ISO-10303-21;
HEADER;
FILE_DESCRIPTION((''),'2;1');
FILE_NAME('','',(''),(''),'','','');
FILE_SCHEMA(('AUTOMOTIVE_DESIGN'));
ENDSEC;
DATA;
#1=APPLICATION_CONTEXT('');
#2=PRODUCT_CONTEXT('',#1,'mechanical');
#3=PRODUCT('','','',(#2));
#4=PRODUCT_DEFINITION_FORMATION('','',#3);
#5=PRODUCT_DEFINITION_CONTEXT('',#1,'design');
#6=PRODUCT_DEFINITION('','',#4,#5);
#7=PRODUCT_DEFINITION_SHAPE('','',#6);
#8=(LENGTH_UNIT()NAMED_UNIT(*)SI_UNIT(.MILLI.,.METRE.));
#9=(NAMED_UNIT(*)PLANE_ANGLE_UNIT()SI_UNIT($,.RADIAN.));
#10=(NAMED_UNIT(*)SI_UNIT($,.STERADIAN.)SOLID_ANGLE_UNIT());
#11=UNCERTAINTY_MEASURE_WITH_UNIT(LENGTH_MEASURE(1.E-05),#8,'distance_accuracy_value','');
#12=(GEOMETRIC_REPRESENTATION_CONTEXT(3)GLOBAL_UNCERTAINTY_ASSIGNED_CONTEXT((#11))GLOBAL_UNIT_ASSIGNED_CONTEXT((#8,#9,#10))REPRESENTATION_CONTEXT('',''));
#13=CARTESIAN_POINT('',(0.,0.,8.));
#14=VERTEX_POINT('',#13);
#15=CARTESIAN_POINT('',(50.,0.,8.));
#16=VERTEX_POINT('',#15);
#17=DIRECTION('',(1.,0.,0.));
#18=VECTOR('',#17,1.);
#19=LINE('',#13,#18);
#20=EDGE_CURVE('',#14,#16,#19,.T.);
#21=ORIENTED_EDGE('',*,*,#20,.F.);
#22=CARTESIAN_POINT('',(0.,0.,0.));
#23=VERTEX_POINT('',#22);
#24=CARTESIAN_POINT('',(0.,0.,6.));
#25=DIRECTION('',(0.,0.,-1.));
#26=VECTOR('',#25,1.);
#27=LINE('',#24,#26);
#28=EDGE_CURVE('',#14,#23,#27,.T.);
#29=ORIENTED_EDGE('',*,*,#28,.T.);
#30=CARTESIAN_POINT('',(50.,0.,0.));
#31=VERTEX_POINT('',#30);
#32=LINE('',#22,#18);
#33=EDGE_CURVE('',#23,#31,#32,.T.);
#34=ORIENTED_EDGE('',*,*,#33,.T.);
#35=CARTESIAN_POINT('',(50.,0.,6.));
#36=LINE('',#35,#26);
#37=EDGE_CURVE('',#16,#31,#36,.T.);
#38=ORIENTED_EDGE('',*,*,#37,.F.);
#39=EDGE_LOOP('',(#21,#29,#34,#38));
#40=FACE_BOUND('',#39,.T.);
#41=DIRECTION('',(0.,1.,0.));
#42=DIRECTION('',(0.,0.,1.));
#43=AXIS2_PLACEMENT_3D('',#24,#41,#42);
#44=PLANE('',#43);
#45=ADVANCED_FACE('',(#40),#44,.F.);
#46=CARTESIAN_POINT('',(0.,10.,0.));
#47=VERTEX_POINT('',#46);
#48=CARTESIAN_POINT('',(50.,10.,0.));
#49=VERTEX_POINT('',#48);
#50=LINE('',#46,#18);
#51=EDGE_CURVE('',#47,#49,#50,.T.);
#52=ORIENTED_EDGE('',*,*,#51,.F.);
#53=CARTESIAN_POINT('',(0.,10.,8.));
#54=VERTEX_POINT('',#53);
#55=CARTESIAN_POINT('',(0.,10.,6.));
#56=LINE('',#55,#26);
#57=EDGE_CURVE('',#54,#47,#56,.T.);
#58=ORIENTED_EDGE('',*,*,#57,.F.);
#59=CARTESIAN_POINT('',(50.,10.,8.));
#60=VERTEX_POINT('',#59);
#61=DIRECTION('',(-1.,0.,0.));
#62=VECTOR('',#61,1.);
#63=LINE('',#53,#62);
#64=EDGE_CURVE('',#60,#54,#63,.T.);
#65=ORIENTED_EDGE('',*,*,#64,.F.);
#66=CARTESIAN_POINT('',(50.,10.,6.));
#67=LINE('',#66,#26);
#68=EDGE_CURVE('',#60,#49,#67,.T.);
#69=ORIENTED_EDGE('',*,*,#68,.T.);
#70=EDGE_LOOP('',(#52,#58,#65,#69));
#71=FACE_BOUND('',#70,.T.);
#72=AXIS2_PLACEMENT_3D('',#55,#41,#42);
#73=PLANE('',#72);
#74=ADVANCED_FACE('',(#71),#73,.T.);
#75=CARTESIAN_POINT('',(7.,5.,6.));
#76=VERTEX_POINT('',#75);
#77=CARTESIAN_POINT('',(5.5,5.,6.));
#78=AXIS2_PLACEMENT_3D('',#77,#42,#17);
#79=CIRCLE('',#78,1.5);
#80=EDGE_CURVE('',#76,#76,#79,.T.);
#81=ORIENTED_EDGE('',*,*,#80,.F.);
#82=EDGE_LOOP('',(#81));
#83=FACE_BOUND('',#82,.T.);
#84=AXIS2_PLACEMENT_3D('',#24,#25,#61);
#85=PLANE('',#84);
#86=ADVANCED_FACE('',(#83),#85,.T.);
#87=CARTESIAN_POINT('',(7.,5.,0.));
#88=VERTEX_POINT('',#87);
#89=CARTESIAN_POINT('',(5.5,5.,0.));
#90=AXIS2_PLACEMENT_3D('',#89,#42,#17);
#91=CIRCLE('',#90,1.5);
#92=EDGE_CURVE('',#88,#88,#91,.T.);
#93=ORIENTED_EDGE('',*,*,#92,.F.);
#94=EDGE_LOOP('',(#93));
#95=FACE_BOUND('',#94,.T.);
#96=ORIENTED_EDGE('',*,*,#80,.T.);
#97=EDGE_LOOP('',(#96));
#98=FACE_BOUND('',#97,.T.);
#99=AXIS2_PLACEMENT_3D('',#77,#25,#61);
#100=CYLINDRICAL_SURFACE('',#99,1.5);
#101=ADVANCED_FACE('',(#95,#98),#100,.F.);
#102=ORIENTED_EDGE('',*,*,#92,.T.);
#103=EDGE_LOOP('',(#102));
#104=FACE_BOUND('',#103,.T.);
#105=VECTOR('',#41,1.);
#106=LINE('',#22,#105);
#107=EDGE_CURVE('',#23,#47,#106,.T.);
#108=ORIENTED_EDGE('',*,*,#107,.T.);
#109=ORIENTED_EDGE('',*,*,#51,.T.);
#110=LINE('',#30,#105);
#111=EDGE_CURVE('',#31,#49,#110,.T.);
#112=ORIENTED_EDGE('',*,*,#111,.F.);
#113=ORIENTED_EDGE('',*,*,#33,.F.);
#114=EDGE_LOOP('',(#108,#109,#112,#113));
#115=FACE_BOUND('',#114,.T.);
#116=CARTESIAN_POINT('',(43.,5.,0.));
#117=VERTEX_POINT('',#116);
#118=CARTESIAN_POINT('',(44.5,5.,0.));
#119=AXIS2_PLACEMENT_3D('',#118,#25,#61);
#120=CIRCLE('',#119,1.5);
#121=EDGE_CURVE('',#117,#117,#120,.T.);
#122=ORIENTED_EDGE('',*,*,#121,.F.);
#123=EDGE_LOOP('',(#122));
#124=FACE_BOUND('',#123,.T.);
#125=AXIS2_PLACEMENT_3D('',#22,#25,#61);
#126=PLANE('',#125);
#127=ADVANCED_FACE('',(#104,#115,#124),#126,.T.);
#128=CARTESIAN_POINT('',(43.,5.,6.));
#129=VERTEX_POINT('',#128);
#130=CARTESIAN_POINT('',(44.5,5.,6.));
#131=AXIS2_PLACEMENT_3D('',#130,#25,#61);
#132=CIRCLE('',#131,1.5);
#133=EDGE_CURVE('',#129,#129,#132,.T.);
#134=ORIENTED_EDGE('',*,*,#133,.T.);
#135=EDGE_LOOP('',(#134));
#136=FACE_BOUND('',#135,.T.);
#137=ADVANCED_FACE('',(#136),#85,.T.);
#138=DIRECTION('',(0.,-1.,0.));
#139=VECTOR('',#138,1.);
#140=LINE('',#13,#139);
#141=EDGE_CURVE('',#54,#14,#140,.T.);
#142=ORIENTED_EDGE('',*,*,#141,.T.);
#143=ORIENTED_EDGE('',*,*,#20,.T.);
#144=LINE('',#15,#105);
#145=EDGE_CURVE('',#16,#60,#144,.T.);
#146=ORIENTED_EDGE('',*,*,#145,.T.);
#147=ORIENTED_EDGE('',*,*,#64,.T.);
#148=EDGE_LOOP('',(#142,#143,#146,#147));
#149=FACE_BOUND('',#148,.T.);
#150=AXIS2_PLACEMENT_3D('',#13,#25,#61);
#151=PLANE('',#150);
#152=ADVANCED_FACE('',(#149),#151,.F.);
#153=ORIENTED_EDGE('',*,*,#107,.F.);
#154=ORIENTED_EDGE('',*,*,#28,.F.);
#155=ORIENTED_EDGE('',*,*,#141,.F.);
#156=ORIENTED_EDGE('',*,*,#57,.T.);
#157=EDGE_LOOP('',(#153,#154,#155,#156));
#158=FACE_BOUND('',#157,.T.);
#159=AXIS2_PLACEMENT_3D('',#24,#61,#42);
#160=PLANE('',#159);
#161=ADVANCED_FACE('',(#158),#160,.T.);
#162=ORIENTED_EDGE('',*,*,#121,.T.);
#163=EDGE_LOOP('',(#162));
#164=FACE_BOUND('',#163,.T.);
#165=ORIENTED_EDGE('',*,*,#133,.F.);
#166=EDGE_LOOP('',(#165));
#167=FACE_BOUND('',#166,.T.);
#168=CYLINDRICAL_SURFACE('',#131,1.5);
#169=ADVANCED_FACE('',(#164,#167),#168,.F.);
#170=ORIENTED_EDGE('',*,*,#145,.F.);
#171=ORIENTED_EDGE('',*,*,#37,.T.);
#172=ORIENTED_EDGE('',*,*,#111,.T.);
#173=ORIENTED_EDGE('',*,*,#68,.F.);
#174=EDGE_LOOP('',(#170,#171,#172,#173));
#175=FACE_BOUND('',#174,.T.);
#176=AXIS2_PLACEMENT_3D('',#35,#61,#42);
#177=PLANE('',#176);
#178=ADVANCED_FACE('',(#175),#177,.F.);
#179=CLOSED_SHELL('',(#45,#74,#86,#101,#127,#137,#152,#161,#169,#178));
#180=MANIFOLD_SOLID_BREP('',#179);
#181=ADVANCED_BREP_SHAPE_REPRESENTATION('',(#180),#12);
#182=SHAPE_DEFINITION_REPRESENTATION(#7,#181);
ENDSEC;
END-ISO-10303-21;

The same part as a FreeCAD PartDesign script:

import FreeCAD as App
import Part
import Sketcher
Q = App.Units.Quantity

doc = App.newDocument("Part")
params = doc.addObject("Spreadsheet::Sheet", "Params")
for row, (alias, value) in enumerate([
    ("sketch1_diameter", "3 mm"),
    ("sketch1_width", "50 mm"),
    ("sketch1_height", "10 mm"),
    ("pad1_length", "6 mm"),
    ("sketch2_width", "50 mm"),
    ("sketch2_height", "10 mm"),
    ("pad2_length", "2 mm"),
], start=1):
    params.set(f"A{row}", alias)
    params.set(f"B{row}", "=" + value)
    params.setAlias(f"B{row}", alias)

body = doc.addObject("PartDesign::Body", "Body")

# Sketch on XY plane
sketch1 = body.newObject("Sketcher::SketchObject", "Sketch")
sketch1.AttachmentSupport = (doc.getObject("XY_Plane"), [""])
sketch1.MapMode = "FlatFace"
sketch1.addGeometry(Part.LineSegment(App.Vector(0, 10, 0), App.Vector(0, 0, 0)), False)
sketch1.addGeometry(Part.LineSegment(App.Vector(0, 0, 0), App.Vector(50, 0, 0)), False)
sketch1.addGeometry(Part.LineSegment(App.Vector(50, 0, 0), App.Vector(50, 10, 0)), False)
sketch1.addGeometry(Part.LineSegment(App.Vector(50, 10, 0), App.Vector(0, 10, 0)), False)
sketch1.addGeometry(Part.Circle(App.Vector(5.5, 5, 0), App.Vector(0, 0, 1), 1.5), False)
sketch1.addGeometry(Part.Circle(App.Vector(44.5, 5, 0), App.Vector(0, 0, 1), 1.5), False)
sketch1.addConstraint(Sketcher.Constraint("Coincident", 0, 2, 1, 1))
sketch1.addConstraint(Sketcher.Constraint("Coincident", 1, 2, 2, 1))
sketch1.addConstraint(Sketcher.Constraint("Coincident", 2, 2, 3, 1))
sketch1.addConstraint(Sketcher.Constraint("Coincident", 3, 2, 0, 1))
sketch1.addConstraint(Sketcher.Constraint("Vertical", 0))
sketch1.addConstraint(Sketcher.Constraint("Horizontal", 1))
sketch1.addConstraint(Sketcher.Constraint("Vertical", 2))
sketch1.addConstraint(Sketcher.Constraint("Horizontal", 3))
sketch1.addConstraint(Sketcher.Constraint("Coincident", 0, 2, -1, 1))
sketch1.addConstraint(Sketcher.Constraint("Equal", 4, 5))
sketch1.addConstraint(Sketcher.Constraint("Horizontal", 4, 3, 5, 3))
sketch1.addConstraint(Sketcher.Constraint("Diameter", 4, Q("3 mm")))
sketch1.addConstraint(Sketcher.Constraint("DistanceX", 1, 1, 1, 2, Q("50 mm")))
sketch1.addConstraint(Sketcher.Constraint("DistanceY", 0, 2, 0, 1, Q("10 mm")))
sketch1.addConstraint(Sketcher.Constraint("DistanceY", -1, 1, 4, 3, Q("5 mm")))
sketch1.addConstraint(Sketcher.Constraint("DistanceX", 4, 3, 5, 3, Q("39 mm")))
sketch1.addConstraint(Sketcher.Constraint("DistanceX", -1, 1, 4, 3, Q("5.5 mm")))
sketch1.setExpression("Constraints[11]", "Params.sketch1_diameter")
sketch1.setExpression("Constraints[12]", "Params.sketch1_width")
sketch1.setExpression("Constraints[13]", "Params.sketch1_height")
pad1 = body.newObject("PartDesign::Pad", "Pad")
pad1.Profile = sketch1
pad1.setExpression("Length", "Params.pad1_length")

# Sketch on XY plane
sketch2 = body.newObject("Sketcher::SketchObject", "Sketch001")
sketch2.AttachmentSupport = (doc.getObject("XY_Plane"), [""])
sketch2.MapMode = "FlatFace"
sketch2.AttachmentOffset = App.Placement(App.Vector(0, 0, 6), App.Rotation())
sketch2.addGeometry(Part.LineSegment(App.Vector(0, 10, 0), App.Vector(0, 0, 0)), False)
sketch2.addGeometry(Part.LineSegment(App.Vector(0, 0, 0), App.Vector(50, 0, 0)), False)
sketch2.addGeometry(Part.LineSegment(App.Vector(50, 0, 0), App.Vector(50, 10, 0)), False)
sketch2.addGeometry(Part.LineSegment(App.Vector(50, 10, 0), App.Vector(0, 10, 0)), False)
sketch2.addConstraint(Sketcher.Constraint("Coincident", 0, 2, 1, 1))
sketch2.addConstraint(Sketcher.Constraint("Coincident", 1, 2, 2, 1))
sketch2.addConstraint(Sketcher.Constraint("Coincident", 2, 2, 3, 1))
sketch2.addConstraint(Sketcher.Constraint("Coincident", 3, 2, 0, 1))
sketch2.addConstraint(Sketcher.Constraint("Vertical", 0))
sketch2.addConstraint(Sketcher.Constraint("Horizontal", 1))
sketch2.addConstraint(Sketcher.Constraint("Vertical", 2))
sketch2.addConstraint(Sketcher.Constraint("Horizontal", 3))
sketch2.addConstraint(Sketcher.Constraint("Coincident", 0, 2, -1, 1))
sketch2.addConstraint(Sketcher.Constraint("DistanceX", 1, 1, 1, 2, Q("50 mm")))
sketch2.addConstraint(Sketcher.Constraint("DistanceY", 0, 2, 0, 1, Q("10 mm")))
sketch2.setExpression("Constraints[9]", "Params.sketch2_width")
sketch2.setExpression("Constraints[10]", "Params.sketch2_height")
pad2 = body.newObject("PartDesign::Pad", "Pad001")
pad2.Profile = sketch2
pad2.setExpression("Length", "Params.pad2_length")

doc.recompute()
